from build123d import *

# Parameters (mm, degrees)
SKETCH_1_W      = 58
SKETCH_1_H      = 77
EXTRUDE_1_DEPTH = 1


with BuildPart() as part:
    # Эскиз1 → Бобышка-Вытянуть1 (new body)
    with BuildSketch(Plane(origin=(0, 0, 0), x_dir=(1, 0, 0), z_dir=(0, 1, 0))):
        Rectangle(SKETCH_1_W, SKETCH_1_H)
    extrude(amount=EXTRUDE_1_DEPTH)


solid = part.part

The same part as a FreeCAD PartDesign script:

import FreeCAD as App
import Part
import Sketcher
Q = App.Units.Quantity

doc = App.newDocument("Part")
params = doc.addObject("Spreadsheet::Sheet", "Params")
for row, (alias, value) in enumerate([
    ("sketch1_width", "58 mm"),
    ("sketch1_height", "77 mm"),
    ("pad1_length", "1 mm"),
], start=1):
    params.set(f"A{row}", alias)
    params.set(f"B{row}", "=" + value)
    params.setAlias(f"B{row}", alias)

body = doc.addObject("PartDesign::Body", "Body")

# Sketch on XZ plane
sketch1 = body.newObject("Sketcher::SketchObject", "Sketch")
sketch1.AttachmentSupport = (doc.getObject("XZ_Plane"), [""])
sketch1.MapMode = "FlatFace"
sketch1.addGeometry(Part.LineSegment(App.Vector(-29, -38, 0), App.Vector(-29, 38, 0)), False)
sketch1.addGeometry(Part.LineSegment(App.Vector(-29, 38, 0), App.Vector(29, 38, 0)), False)
sketch1.addGeometry(Part.LineSegment(App.Vector(29, 38, 0), App.Vector(29, -38, 0)), False)
sketch1.addGeometry(Part.LineSegment(App.Vector(29, -38, 0), App.Vector(-29, -38, 0)), False)
sketch1.addConstraint(Sketcher.Constraint("Coincident", 0, 2, 1, 1))
sketch1.addConstraint(Sketcher.Constraint("Coincident", 1, 2, 2, 1))
sketch1.addConstraint(Sketcher.Constraint("Coincident", 2, 2, 3, 1))
sketch1.addConstraint(Sketcher.Constraint("Coincident", 3, 2, 0, 1))
sketch1.addConstraint(Sketcher.Constraint("Vertical", 0))
sketch1.addConstraint(Sketcher.Constraint("Horizontal", 1))
sketch1.addConstraint(Sketcher.Constraint("Vertical", 2))
sketch1.addConstraint(Sketcher.Constraint("Horizontal", 3))
sketch1.addConstraint(Sketcher.Constraint("Symmetric", 0, 2, 2, 2, -1, 1))
sketch1.addConstraint(Sketcher.Constraint("DistanceX", 1, 1, 1, 2, Q("58 mm")))
sketch1.addConstraint(Sketcher.Constraint("DistanceY", 0, 1, 0, 2, Q("77 mm")))
sketch1.setExpression("Constraints[9]", "Params.sketch1_width")
sketch1.setExpression("Constraints[10]", "Params.sketch1_height")
pad1 = body.newObject("PartDesign::Pad", "Pad")
pad1.Profile = sketch1
pad1.setExpression("Length", "Params.pad1_length")
pad1.Reversed = True

doc.recompute()
